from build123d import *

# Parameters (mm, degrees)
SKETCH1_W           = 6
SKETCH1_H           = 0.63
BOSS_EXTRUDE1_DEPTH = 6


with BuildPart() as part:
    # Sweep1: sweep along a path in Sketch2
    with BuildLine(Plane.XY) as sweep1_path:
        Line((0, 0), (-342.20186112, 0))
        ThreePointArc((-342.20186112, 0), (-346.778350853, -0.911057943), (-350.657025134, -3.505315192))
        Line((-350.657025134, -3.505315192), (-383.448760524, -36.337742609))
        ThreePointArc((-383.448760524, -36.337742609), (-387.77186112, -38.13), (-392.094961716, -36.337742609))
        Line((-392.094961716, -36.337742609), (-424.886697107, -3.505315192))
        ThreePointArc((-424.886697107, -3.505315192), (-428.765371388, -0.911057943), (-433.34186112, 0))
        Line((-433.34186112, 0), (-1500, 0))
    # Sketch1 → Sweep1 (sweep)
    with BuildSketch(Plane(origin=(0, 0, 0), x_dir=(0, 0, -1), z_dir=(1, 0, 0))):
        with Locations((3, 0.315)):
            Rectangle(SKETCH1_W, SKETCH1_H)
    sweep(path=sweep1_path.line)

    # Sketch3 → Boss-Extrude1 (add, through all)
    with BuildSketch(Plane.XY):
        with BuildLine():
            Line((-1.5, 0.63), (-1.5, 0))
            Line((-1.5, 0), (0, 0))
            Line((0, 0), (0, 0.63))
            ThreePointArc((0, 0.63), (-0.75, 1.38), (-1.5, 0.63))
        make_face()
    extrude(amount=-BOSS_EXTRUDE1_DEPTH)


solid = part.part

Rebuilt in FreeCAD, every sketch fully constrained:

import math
import FreeCAD as App
import Part
import Sketcher

doc = App.newDocument("Part")
body = doc.addObject("PartDesign::Body", "Body")

sketch1 = body.newObject("Sketcher::SketchObject", "Sketch")
sketch1.AttachmentSupport = (doc.getObject("YZ_Plane"), [""])
sketch1.MapMode = "FlatFace"
sketch1.addGeometry([
    Part.LineSegment(App.Vector(0.63, 0, 0), App.Vector(0, 0, 0)),
    Part.LineSegment(App.Vector(0, 0, 0), App.Vector(0, -6, 0)),
    Part.LineSegment(App.Vector(0, -6, 0), App.Vector(0.63, -6, 0)),
    Part.LineSegment(App.Vector(0.63, -6, 0), App.Vector(0.63, 0, 0)),
], False)
sketch1.addConstraint([
    Sketcher.Constraint("Coincident", 0, 2, 1, 1),
    Sketcher.Constraint("Coincident", 1, 2, 2, 1),
    Sketcher.Constraint("Coincident", 2, 2, 3, 1),
    Sketcher.Constraint("Coincident", 3, 2, 0, 1),
    Sketcher.Constraint("Horizontal", 0),
    Sketcher.Constraint("Vertical", 1),
    Sketcher.Constraint("Horizontal", 2),
    Sketcher.Constraint("Vertical", 3),
    Sketcher.Constraint("Coincident", 0, 2, -1, 1),
    Sketcher.Constraint("DistanceY", 1, 2, 1, 1, 6.0),
    Sketcher.Constraint("DistanceX", 0, 2, 0, 1, 0.63),
])

sketch2 = body.newObject("Sketcher::SketchObject", "Sketch001")
sketch2.AttachmentSupport = (doc.getObject("XY_Plane"), [""])
sketch2.MapMode = "FlatFace"
sketch2.addGeometry([
    Part.LineSegment(App.Vector(0, 0, 0), App.Vector(-342.201861, 0, 0)),
    Part.ArcOfCircle(Part.Circle(App.Vector(-342.201861, -11.95, 0), App.Vector(0, 0, 1), 11.95), math.radians(90), math.radians(135.035528)),
    Part.LineSegment(App.Vector(-350.657025, -3.505315, 0), App.Vector(-383.448761, -36.337743, 0)),
    Part.ArcOfCircle(Part.Circle(App.Vector(-387.771861, -32.02, 0), App.Vector(0, 0, 1), 6.11), math.radians(-135.035528), math.radians(-44.964472)),
    Part.LineSegment(App.Vector(-392.094962, -36.337743, 0), App.Vector(-424.886697, -3.505315, 0)),
    Part.ArcOfCircle(Part.Circle(App.Vector(-433.341861, -11.95, 0), App.Vector(0, 0, 1), 11.95), math.radians(44.964472), math.radians(90)),
    Part.LineSegment(App.Vector(-433.341861, 0, 0), App.Vector(-1500, 0, 0)),
], False)
sketch2.addConstraint([
    Sketcher.Constraint("Tangent", 0, 2, 1, 1),
    Sketcher.Constraint("Tangent", 1, 2, 2, 1),
    Sketcher.Constraint("Tangent", 2, 2, 3, 2),
    Sketcher.Constraint("Tangent", 3, 1, 4, 1),
    Sketcher.Constraint("Tangent", 4, 2, 5, 1),
    Sketcher.Constraint("Tangent", 5, 2, 6, 1),
    Sketcher.Constraint("Horizontal", 0),
    Sketcher.Constraint("Horizontal", 6),
    Sketcher.Constraint("Coincident", 0, 1, -1, 1),
    Sketcher.Constraint("Equal", 1, 5),
    Sketcher.Constraint("PointOnObject", 5, 2, -1),
    Sketcher.Constraint("Horizontal", 2, 2, 3, 1),
    Sketcher.Constraint("Radius", 1, 11.95),
    Sketcher.Constraint("Radius", 3, 6.11),
    Sketcher.Constraint("DistanceX", 6, 2, -1, 1, 1500.0),
    Sketcher.Constraint("DistanceY", 3, 3, -1, 1, 32.02),
    Sketcher.Constraint("DistanceX", 3, 3, 1, 3, 45.57),
    Sketcher.Constraint("DistanceX", 0, 2, 0, 1, 342.201861),
])
doc.recompute()

additivepipe = body.newObject("PartDesign::AdditivePipe", "AdditivePipe")
additivepipe.Profile = sketch1
additivepipe.Spine = (sketch2, ["Edge1", "Edge2", "Edge3", "Edge4", "Edge5", "Edge6", "Edge7"])

sketch3 = body.newObject("Sketcher::SketchObject", "Sketch002")
sketch3.AttachmentSupport = (doc.getObject("XY_Plane"), [""])
sketch3.MapMode = "FlatFace"
sketch3.addGeometry([
    Part.LineSegment(App.Vector(-1.5, 0.63, 0), App.Vector(-1.5, 0, 0)),
    Part.LineSegment(App.Vector(-1.5, 0, 0), App.Vector(0, 0, 0)),
    Part.LineSegment(App.Vector(0, 0, 0), App.Vector(0, 0.63, 0)),
    Part.ArcOfCircle(Part.Circle(App.Vector(-0.75, 0.63, 0), App.Vector(0, 0, 1), 0.75), math.radians(0), math.radians(180)),
], False)
sketch3.addConstraint([
    Sketcher.Constraint("Coincident", 0, 2, 1, 1),
    Sketcher.Constraint("Coincident", 1, 2, 2, 1),
    Sketcher.Constraint("Tangent", 2, 2, 3, 1),
    Sketcher.Constraint("Tangent", 3, 2, 0, 1),
    Sketcher.Constraint("Vertical", 0),
    Sketcher.Constraint("Horizontal", 1),
    Sketcher.Constraint("Vertical", 2),
    Sketcher.Constraint("Coincident", 1, 2, -1, 1),
    Sketcher.Constraint("Radius", 3, 0.75),
    Sketcher.Constraint("DistanceY", 0, 2, 0, 1, 0.63),
])
pad1 = body.newObject("PartDesign::Pad", "Pad")
pad1.Profile = sketch3
pad1.Type = "UpToLast"
pad1.Reversed = True

doc.recompute()
